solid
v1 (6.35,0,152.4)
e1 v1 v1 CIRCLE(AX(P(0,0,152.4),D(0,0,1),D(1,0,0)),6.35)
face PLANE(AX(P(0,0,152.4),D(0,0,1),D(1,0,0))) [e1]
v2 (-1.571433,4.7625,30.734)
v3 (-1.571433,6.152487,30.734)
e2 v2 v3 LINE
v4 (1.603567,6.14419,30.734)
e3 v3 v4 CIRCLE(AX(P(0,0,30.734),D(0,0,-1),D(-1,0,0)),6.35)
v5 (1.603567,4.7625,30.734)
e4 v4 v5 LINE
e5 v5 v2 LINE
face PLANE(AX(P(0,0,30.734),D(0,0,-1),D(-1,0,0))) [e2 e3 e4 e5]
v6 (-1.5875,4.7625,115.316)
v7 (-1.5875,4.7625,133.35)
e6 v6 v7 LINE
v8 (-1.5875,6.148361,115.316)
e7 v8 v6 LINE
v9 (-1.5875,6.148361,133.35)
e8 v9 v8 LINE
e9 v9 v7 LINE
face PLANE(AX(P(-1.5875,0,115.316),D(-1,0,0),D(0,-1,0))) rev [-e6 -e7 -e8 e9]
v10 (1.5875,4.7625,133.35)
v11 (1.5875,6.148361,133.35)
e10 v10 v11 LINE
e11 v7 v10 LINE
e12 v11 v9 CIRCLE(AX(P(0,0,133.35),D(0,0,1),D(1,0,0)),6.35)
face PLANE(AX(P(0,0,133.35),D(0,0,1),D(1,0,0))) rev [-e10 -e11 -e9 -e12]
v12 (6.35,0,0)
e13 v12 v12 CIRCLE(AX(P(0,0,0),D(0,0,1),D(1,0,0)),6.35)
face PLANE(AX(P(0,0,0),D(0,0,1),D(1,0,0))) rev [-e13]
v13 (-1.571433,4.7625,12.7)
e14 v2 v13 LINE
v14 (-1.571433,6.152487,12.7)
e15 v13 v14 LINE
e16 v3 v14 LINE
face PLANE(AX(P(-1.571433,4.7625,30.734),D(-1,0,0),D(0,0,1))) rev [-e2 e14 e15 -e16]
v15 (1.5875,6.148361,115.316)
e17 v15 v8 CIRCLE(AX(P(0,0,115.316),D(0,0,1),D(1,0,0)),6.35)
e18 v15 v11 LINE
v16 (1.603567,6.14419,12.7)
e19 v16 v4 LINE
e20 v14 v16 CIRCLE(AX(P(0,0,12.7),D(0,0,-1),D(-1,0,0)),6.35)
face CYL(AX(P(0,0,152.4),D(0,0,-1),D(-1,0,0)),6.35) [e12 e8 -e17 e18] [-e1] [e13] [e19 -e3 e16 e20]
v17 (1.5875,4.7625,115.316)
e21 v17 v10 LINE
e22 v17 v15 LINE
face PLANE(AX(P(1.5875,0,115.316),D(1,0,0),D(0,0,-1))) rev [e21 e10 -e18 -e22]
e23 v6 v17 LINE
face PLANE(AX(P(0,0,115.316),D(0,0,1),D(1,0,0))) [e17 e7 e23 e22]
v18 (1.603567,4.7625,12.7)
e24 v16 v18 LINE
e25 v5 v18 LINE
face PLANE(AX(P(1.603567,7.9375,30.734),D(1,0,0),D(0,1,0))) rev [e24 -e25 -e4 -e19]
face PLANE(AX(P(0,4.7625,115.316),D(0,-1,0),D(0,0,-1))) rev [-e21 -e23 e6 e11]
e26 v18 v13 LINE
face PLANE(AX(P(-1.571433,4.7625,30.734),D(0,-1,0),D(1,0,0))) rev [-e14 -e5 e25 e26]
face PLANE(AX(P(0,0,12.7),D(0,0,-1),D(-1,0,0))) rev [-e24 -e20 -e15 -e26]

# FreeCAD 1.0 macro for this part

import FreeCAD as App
import Part
import Sketcher
Q = App.Units.Quantity


def add_polygon(sketch, points):
    """Adds a closed chain of lines whose ends are joined by coincident constraints."""
    first, n = sketch.GeometryCount, len(points)
    for a, b in zip(points, points[1:] + points[:1]):
        sketch.addGeometry(Part.LineSegment(App.Vector(*a, 0), App.Vector(*b, 0)), False)
    for i in range(n):
        sketch.addConstraint(Sketcher.Constraint("Coincident", first + i, 2, first + (i + 1) % n, 1))

doc = App.newDocument("Part")
body = doc.addObject("PartDesign::Body", "Body")

sketch1 = body.newObject("Sketcher::SketchObject", "Sketch")
sketch1.AttachmentSupport = (doc.getObject("XY_Plane"), [""])
sketch1.MapMode = "FlatFace"
sketch1.addGeometry(Part.Circle(App.Vector(0, 0, 0), App.Vector(0, 0, 1), 6), False)
sketch1.addConstraint(Sketcher.Constraint("Coincident", 0, 3, -1, 1))
sketch1.addConstraint(Sketcher.Constraint("Diameter", 0, Q("0.5 in")))
pad1 = body.newObject("PartDesign::Pad", "Pad")
pad1.Profile = sketch1
pad1.Length = Q("6 in")

sketch2 = body.newObject("Sketcher::SketchObject", "Sketch001")
sketch2.AttachmentSupport = (doc.getObject("XY_Plane"), [""])
sketch2.MapMode = "FlatFace"
sketch2.AttachmentOffset = App.Placement(App.Vector(0, 0, 0.5 * 25.4), App.Rotation())
add_polygon(sketch2, [(1.6, 4.8), (-1.6, 4.8), (-1.6, 7.9), (1.6, 7.9)])
sketch2.addConstraint(Sketcher.Constraint("Horizontal", 0))
sketch2.addConstraint(Sketcher.Constraint("Vertical", 1))
sketch2.addConstraint(Sketcher.Constraint("Horizontal", 2))
sketch2.addConstraint(Sketcher.Constraint("Vertical", 3))
sketch2.addConstraint(Sketcher.Constraint("Equal", 2, 1))
sketch2.addConstraint(Sketcher.Constraint("DistanceX", 0, 2, 0, 1, Q("0.125 in")))
sketch2.addConstraint(Sketcher.Constraint("DistanceY", -1, 1, 0, 2, Q("0.1875 in")))
sketch2.addConstraint(Sketcher.Constraint("DistanceX", 0, 2, -1, 1, Q("1.571433 mm")))
pocket1 = body.newObject("PartDesign::Pocket", "Pocket")
pocket1.Profile = sketch2
pocket1.Length = Q("0.71 in")
pocket1.Reversed = True

sketch3 = body.newObject("Sketcher::SketchObject", "Sketch002")
sketch3.AttachmentSupport = (doc.getObject("XY_Plane"), [""])
sketch3.MapMode = "FlatFace"
sketch3.AttachmentOffset = App.Placement(App.Vector(0, 0, 5.25 * 25.4), App.Rotation())
add_polygon(sketch3, [(1.6, 4.8), (1.6, 7.9), (-1.6, 7.9), (-1.6, 4.8)])
sketch3.addConstraint(Sketcher.Constraint("Vertical", 0))
sketch3.addConstraint(Sketcher.Constraint("Horizontal", 1))
sketch3.addConstraint(Sketcher.Constraint("Vertical", 2))
sketch3.addConstraint(Sketcher.Constraint("Horizontal", 3))
sketch3.addConstraint(Sketcher.Constraint("Equal", 3, 0))
sketch3.addConstraint(Sketcher.Constraint("DistanceX", 1, 2, 1, 1, Q("0.125 in")))
sketch3.addConstraint(Sketcher.Constraint("DistanceX", -1, 1, 0, 2, Q("0.0625 in")))
sketch3.addConstraint(Sketcher.Constraint("DistanceY", -1, 1, 0, 2, Q("0.3125 in")))
pocket2 = body.newObject("PartDesign::Pocket", "Pocket001")
pocket2.Profile = sketch3
pocket2.Length = Q("0.71 in")

doc.recompute()
